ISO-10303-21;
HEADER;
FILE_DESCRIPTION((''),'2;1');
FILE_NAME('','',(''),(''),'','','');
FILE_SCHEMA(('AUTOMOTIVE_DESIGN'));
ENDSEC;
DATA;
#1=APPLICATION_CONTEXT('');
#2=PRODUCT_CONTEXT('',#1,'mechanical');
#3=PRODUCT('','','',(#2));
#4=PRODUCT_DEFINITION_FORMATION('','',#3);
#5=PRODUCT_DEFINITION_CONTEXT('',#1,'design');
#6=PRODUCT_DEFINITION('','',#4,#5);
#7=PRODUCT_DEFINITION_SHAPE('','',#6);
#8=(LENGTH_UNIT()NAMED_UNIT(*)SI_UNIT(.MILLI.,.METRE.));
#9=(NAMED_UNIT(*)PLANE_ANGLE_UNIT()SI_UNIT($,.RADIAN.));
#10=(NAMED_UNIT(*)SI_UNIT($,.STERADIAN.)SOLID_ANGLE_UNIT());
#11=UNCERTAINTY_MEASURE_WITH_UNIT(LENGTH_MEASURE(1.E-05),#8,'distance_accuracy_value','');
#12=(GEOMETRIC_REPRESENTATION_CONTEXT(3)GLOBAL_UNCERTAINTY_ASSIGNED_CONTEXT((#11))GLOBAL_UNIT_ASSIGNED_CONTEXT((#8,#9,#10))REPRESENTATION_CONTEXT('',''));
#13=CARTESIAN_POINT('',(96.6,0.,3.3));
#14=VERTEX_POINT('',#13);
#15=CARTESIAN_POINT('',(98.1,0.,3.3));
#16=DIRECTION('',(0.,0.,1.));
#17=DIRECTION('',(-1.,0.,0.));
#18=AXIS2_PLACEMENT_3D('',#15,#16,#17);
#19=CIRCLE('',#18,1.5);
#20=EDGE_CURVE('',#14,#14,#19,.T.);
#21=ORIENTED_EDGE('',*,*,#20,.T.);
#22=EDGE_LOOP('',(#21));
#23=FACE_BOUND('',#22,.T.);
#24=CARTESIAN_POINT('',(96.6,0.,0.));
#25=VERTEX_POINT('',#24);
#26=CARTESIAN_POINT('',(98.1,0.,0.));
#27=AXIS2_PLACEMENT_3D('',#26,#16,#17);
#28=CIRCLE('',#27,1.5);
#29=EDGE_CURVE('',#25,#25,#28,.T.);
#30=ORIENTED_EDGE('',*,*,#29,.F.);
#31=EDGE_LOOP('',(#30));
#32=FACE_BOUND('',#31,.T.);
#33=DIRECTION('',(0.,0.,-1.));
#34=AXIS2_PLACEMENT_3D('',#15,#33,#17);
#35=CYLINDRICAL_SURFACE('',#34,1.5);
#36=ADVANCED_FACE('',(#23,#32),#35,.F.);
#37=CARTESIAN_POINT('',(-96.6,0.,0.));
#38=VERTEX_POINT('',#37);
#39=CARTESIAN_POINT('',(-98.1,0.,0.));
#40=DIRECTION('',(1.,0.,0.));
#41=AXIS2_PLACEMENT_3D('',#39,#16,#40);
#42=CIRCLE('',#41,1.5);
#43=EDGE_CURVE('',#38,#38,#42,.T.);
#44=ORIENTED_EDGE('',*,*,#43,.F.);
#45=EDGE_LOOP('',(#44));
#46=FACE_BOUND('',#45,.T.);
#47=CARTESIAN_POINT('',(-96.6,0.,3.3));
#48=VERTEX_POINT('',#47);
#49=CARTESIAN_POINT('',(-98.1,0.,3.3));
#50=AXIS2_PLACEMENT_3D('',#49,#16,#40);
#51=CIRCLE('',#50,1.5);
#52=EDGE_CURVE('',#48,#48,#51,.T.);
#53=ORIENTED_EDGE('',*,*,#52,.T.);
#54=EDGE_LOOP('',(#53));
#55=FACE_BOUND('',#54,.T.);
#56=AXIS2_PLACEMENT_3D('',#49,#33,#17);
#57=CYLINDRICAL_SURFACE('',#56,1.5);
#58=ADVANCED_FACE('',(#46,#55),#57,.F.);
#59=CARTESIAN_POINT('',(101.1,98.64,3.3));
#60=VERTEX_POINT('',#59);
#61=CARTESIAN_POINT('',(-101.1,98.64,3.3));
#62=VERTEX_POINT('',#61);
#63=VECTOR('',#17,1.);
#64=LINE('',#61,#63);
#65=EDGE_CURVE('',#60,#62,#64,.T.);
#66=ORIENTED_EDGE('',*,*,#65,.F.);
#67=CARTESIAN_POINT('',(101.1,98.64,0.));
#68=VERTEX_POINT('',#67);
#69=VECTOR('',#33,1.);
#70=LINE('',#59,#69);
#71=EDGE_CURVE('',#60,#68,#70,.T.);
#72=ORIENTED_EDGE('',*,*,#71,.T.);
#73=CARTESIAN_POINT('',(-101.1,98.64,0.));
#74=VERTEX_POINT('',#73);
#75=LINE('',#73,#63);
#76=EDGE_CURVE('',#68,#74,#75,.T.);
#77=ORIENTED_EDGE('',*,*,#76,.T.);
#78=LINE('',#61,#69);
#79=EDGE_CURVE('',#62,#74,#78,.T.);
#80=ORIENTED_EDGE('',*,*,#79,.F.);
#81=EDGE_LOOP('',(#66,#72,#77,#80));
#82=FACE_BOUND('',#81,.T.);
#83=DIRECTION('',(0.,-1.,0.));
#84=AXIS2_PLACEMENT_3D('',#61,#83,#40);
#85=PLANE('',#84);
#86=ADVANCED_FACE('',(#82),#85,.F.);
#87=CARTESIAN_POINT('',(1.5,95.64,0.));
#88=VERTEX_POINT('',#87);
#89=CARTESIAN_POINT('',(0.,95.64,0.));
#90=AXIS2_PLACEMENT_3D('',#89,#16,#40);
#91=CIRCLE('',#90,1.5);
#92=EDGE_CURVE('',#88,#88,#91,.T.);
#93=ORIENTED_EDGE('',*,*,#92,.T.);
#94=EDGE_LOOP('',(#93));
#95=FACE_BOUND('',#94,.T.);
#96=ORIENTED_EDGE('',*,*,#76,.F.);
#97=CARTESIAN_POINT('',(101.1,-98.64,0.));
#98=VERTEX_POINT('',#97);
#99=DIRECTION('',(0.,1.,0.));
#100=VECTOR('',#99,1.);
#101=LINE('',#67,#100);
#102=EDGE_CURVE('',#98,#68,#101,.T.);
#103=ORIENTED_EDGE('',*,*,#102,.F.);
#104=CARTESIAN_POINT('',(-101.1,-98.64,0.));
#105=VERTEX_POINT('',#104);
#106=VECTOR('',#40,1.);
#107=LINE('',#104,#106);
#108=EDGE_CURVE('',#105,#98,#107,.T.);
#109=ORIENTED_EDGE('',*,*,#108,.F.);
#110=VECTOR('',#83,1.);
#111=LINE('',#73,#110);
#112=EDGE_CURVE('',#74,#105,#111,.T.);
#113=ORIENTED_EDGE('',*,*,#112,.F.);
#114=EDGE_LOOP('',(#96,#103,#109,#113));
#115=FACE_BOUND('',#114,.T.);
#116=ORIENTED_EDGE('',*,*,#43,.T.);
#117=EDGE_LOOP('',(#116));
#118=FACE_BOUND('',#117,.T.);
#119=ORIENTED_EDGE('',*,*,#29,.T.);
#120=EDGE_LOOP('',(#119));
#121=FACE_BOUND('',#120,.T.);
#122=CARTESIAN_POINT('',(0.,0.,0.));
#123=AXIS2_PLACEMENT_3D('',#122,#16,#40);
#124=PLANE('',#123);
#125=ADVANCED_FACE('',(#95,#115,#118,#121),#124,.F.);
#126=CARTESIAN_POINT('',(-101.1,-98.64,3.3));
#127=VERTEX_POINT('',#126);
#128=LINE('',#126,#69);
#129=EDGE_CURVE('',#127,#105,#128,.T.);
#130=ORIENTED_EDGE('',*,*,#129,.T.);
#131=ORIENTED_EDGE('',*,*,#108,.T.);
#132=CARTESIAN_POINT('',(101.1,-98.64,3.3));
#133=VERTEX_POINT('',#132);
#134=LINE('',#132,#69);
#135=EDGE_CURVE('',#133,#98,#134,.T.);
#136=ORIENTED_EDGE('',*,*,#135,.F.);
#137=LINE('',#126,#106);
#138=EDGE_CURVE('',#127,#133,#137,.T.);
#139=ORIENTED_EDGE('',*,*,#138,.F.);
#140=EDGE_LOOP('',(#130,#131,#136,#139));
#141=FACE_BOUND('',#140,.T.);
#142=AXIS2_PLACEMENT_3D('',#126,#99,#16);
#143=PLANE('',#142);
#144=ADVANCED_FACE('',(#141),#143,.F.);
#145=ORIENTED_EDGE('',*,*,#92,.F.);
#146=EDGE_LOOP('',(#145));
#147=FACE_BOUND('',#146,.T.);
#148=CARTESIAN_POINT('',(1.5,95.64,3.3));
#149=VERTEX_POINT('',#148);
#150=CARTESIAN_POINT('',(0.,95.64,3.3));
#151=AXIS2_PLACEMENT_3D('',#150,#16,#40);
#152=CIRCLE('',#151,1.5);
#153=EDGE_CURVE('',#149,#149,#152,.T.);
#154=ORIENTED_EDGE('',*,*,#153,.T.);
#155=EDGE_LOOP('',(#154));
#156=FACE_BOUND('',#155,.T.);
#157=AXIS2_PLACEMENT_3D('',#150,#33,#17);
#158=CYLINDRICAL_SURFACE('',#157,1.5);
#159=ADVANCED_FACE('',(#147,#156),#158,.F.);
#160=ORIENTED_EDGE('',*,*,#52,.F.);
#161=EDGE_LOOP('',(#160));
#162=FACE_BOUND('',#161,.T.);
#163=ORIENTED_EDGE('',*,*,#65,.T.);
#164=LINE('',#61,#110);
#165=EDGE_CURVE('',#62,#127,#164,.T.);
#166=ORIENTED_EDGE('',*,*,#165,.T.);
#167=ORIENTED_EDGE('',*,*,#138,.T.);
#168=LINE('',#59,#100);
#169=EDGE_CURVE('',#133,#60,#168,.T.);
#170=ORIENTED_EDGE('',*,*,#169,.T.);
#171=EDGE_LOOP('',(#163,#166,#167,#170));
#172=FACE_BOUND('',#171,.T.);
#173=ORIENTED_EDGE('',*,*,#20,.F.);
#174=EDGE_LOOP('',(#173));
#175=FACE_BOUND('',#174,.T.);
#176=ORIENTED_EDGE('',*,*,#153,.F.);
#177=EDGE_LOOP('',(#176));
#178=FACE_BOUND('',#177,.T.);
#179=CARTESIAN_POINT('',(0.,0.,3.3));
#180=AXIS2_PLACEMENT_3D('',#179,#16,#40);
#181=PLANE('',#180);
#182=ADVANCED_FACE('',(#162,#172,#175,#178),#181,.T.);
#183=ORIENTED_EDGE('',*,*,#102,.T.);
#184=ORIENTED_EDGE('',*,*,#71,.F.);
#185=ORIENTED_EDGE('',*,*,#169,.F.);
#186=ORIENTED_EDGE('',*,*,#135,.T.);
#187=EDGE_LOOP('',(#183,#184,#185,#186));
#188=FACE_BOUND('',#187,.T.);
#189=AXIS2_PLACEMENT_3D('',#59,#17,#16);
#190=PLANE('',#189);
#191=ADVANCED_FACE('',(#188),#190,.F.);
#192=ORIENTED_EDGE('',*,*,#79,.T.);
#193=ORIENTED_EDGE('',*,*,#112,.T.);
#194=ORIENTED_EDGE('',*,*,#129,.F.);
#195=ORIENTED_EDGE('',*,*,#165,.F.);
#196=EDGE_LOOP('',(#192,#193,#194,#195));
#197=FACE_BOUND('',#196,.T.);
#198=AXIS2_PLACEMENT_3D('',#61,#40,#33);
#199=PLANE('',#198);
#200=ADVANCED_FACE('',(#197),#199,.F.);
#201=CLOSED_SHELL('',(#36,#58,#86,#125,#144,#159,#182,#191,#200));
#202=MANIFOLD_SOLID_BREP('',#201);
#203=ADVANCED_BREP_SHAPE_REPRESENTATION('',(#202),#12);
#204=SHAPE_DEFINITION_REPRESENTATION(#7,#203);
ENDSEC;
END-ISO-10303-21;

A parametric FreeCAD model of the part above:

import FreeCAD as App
import Part
import Sketcher
from FreeCAD import Vector
Q = App.Units.Quantity


def add_polygon(sketch, points):
    """Adds a closed chain of lines whose ends are joined by coincident constraints."""
    first, n = sketch.GeometryCount, len(points)
    for a, b in zip(points, points[1:] + points[:1]):
        sketch.addGeometry(Part.LineSegment(App.Vector(*a, 0), App.Vector(*b, 0)), False)
    for i in range(n):
        sketch.addConstraint(Sketcher.Constraint("Coincident", first + i, 2, first + (i + 1) % n, 1))

doc = App.newDocument("Part")
body = doc.addObject("PartDesign::Body", "Body")

# Sketch on XY plane
sketch1 = body.newObject("Sketcher::SketchObject", "Sketch")
sketch1.AttachmentSupport = (doc.getObject("XY_Plane"), [""])
sketch1.MapMode = "FlatFace"
add_polygon(sketch1, [(-101.1, 98.6), (-101.1, -98.6), (101.1, -98.6), (101.1, 98.6)])  # lines 0-3
sketch1.addGeometry(Part.Circle(Vector(-98.1, 0, 0), Vector(0, 0, 1), 1.5), False)  # 4
sketch1.addGeometry(Part.Circle(Vector(98.1, 0, 0), Vector(0, 0, 1), 1.5), False)  # 5
sketch1.addGeometry(Part.Circle(Vector(0, 95.6, 0), Vector(0, 0, 1), 1.5), False)  # 6
sketch1.addConstraint([
    Sketcher.Constraint("Vertical", 0),
    Sketcher.Constraint("Horizontal", 1),
    Sketcher.Constraint("Vertical", 2),
    Sketcher.Constraint("Horizontal", 3),
    Sketcher.Constraint("Equal", 4, 5),
    Sketcher.Constraint("Equal", 5, 6),
    Sketcher.Constraint("Symmetric", 4, 3, 5, 3, -1, 1),
    Sketcher.Constraint("Symmetric", 0, 2, 2, 2, -1, 1),
    Sketcher.Constraint("PointOnObject", 4, 3, -1),
    Sketcher.Constraint("PointOnObject", 6, 3, -2),
    Sketcher.Constraint("Diameter", 4, Q("3 mm")),
    Sketcher.Constraint("DistanceX", 1, 1, 1, 2, Q("202.2 mm")),
    Sketcher.Constraint("DistanceX", 0, 2, 4, 3, Q("3 mm")),
    Sketcher.Constraint("DistanceY", 6, 3, 2, 2, Q("3 mm")),
    Sketcher.Constraint("DistanceY", 0, 2, 0, 1, Q("197.28 mm")),
])
pad1 = body.newObject("PartDesign::Pad", "Pad")
pad1.Profile = sketch1
pad1.Length = 3.3

doc.recompute()
